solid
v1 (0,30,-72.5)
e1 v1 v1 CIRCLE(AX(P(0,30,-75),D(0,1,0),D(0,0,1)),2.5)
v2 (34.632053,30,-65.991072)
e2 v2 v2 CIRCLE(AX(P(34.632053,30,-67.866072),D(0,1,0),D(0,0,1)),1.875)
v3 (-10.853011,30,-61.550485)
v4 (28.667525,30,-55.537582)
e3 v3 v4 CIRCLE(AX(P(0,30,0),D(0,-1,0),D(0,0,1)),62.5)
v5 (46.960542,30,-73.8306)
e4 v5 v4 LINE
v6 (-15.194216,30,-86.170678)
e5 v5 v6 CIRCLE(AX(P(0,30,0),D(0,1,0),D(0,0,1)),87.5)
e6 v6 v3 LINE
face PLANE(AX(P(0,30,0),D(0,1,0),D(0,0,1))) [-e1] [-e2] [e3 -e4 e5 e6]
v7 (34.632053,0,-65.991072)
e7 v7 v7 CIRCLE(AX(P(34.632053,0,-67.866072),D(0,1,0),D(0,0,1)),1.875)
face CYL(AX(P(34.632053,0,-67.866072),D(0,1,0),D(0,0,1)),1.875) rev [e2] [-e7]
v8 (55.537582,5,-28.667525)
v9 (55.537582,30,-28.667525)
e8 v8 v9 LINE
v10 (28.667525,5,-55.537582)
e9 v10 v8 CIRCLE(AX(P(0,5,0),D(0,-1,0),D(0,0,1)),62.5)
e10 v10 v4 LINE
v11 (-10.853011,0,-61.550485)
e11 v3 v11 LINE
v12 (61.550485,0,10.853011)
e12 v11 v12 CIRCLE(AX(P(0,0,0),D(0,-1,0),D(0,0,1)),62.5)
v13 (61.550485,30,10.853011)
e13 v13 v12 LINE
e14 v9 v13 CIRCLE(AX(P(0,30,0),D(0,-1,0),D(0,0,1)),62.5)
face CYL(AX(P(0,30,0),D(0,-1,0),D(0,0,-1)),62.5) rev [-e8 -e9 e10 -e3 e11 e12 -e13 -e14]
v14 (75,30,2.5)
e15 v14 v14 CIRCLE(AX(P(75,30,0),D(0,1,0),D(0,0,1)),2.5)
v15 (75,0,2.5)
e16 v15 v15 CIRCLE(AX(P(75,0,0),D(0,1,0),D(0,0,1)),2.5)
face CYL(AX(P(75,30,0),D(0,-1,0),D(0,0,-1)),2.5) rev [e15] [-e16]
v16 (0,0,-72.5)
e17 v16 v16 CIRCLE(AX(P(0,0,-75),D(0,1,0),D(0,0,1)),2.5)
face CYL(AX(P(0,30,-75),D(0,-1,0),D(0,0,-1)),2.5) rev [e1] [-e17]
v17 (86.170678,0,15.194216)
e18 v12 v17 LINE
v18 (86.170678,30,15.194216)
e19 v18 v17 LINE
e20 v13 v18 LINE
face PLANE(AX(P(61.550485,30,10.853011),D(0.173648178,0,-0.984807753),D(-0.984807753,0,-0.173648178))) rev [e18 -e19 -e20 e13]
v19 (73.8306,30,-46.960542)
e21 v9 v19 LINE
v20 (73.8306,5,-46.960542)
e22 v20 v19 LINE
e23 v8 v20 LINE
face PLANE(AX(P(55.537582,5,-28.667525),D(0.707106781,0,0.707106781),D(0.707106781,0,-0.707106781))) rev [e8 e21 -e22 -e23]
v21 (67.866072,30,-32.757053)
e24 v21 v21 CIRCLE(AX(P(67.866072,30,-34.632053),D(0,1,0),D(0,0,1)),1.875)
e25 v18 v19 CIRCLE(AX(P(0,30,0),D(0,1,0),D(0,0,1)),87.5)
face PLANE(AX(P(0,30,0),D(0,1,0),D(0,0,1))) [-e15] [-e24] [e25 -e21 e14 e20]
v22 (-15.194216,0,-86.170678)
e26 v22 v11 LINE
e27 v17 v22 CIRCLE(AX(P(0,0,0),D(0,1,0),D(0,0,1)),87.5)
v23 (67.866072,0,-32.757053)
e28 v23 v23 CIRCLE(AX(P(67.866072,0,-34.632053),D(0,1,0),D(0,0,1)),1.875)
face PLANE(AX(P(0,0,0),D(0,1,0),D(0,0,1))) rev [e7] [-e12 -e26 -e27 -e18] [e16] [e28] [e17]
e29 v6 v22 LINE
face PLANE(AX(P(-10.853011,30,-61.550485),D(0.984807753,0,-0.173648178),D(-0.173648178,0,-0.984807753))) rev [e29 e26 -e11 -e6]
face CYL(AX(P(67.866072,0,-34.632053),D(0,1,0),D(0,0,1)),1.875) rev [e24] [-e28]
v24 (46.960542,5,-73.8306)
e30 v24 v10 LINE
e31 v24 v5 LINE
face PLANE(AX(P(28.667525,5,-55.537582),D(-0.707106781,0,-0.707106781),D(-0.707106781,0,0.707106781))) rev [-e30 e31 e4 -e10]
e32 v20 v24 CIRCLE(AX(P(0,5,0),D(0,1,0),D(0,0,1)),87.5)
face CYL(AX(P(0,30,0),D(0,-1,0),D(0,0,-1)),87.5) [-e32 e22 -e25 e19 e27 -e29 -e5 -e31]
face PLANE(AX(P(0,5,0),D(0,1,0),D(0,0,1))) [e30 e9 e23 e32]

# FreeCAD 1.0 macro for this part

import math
import FreeCAD as App
import Part
import Sketcher
from FreeCAD import Vector
Q = App.Units.Quantity

doc = App.newDocument("Part")
body = doc.addObject("PartDesign::Body", "Body")

sketch1 = body.newObject("Sketcher::SketchObject", "Sketch")
sketch1.AttachmentSupport = (doc.getObject("XZ_Plane"), [""])
sketch1.MapMode = "FlatFace"
sketch1.addGeometry([
    Part.LineSegment(Vector(-15.2, -86.2, 0), Vector(-10.9, -61.6, 0)),
    Part.ArcOfCircle(Part.Circle(Vector(0, 0, 0), Vector(0, 0, 1), 62.5), math.radians(-100), math.radians(10)),
    Part.LineSegment(Vector(61.6, 10.9, 0), Vector(86.2, 15.2, 0)),
    Part.ArcOfCircle(Part.Circle(Vector(0, 0, 0), Vector(0, 0, 1), 87.5), math.radians(-100), math.radians(10)),
    Part.Circle(Vector(75, 0, 0), Vector(0, 0, 1), 2.5),
    Part.Circle(Vector(0, -75, 0), Vector(0, 0, 1), 2.5),
], False)
sketch1.addConstraint([
    Sketcher.Constraint("Coincident", 0, 2, 1, 1),
    Sketcher.Constraint("Coincident", 1, 2, 2, 1),
    Sketcher.Constraint("Coincident", 2, 2, 3, 2),
    Sketcher.Constraint("Coincident", 3, 1, 0, 1),
    Sketcher.Constraint("Coincident", 1, 3, -1, 1),
    Sketcher.Constraint("Coincident", 3, 3, -1, 1),
    Sketcher.Constraint("Equal", 4, 5),
    Sketcher.Constraint("PointOnObject", 4, 3, -1),
    Sketcher.Constraint("PointOnObject", 5, 3, -2),
    Sketcher.Constraint("Diameter", 4, Q("5 mm")),
    Sketcher.Constraint("Radius", 1, Q("62.5 mm")),
    Sketcher.Constraint("Radius", 3, Q("87.5 mm")),
    Sketcher.Constraint("Angle", 0, Q("80 deg")),
    Sketcher.Constraint("Angle", 2, Q("10 deg")),
    Sketcher.Constraint("DistanceX", -1, 1, 4, 3, Q("75 mm")),
    Sketcher.Constraint("DistanceY", 5, 3, -1, 1, Q("75 mm")),
    Sketcher.Constraint("DistanceY", 0, 2, 2, 2, Q("76.7447 mm")),
    Sketcher.Constraint("DistanceX", 3, 1, 1, 2, Q("76.7447 mm")),
])
pad1 = body.newObject("PartDesign::Pad", "Pad")
pad1.Profile = sketch1
pad1.Length = 30
pad1.Reversed = True

sketch2 = body.newObject("Sketcher::SketchObject", "Sketch001")
sketch2.AttachmentSupport = (doc.getObject("XZ_Plane"), [""])
sketch2.MapMode = "FlatFace"
sketch2.AttachmentOffset = App.Placement(Vector(0, 0, -5), App.Rotation())
sketch2.addGeometry([
    Part.LineSegment(Vector(47, -74, 0), Vector(29, -56, 0)),
    Part.ArcOfCircle(Part.Circle(Vector(0, 0, 0), Vector(0, 0, 1), 62), math.radians(-63), math.radians(-27)),
    Part.LineSegment(Vector(56, -29, 0), Vector(74, -47, 0)),
    Part.ArcOfCircle(Part.Circle(Vector(0, 0, 0), Vector(0, 0, 1), 87), math.radians(-58), math.radians(-32)),
], False)
sketch2.addConstraint([
    Sketcher.Constraint("Coincident", 0, 2, 1, 1),
    Sketcher.Constraint("Coincident", 1, 2, 2, 1),
    Sketcher.Constraint("Coincident", 2, 2, 3, 2),
    Sketcher.Constraint("Coincident", 3, 1, 0, 1),
    Sketcher.Constraint("Coincident", 1, 3, -1, 1),
    Sketcher.Constraint("Coincident", 3, 3, -1, 1),
    Sketcher.Constraint("Parallel", 0, 2),
    Sketcher.Constraint("Equal", 0, 2),
    Sketcher.Constraint("Radius", 1, Q("62.5 mm")),
    Sketcher.Constraint("Radius", 3, Q("87.5 mm")),
    Sketcher.Constraint("Angle", 0, Q("135 deg")),
    Sketcher.Constraint("DistanceX", -1, 1, 2, 2, Q("73.8306 mm")),
])
pocket1 = body.newObject("PartDesign::Pocket", "Pocket")
pocket1.Profile = sketch2
pocket1.Length = 25

sketch3 = body.newObject("Sketcher::SketchObject", "Sketch002")
sketch3.AttachmentSupport = (doc.getObject("XZ_Plane"), [""])
sketch3.MapMode = "FlatFace"
sketch3.AttachmentOffset = App.Placement(Vector(0, 0, -30), App.Rotation())
sketch3.addGeometry([
    Part.Circle(Vector(67.9, -34.6, 0), Vector(0, 0, 1), 1.9),
    Part.Circle(Vector(34.6, -67.9, 0), Vector(0, 0, 1), 1.9),
], False)
sketch3.addConstraint([
    Sketcher.Constraint("Equal", 0, 1),
    Sketcher.Constraint("Diameter", 0, Q("3.75 mm")),
    Sketcher.Constraint("DistanceX", -1, 1, 0, 3, Q("67.866072 mm")),
    Sketcher.Constraint("DistanceY", 1, 3, -1, 1, Q("67.866072 mm")),
    Sketcher.Constraint("DistanceX", 1, 3, 0, 3, Q("33.234019 mm")),
    Sketcher.Constraint("DistanceY", 1, 3, 0, 3, Q("33.234019 mm")),
])
pocket2 = body.newObject("PartDesign::Pocket", "Pocket001")
pocket2.Profile = sketch3
pocket2.Type = "ThroughAll"
pocket2.Reversed = True

doc.recompute()
